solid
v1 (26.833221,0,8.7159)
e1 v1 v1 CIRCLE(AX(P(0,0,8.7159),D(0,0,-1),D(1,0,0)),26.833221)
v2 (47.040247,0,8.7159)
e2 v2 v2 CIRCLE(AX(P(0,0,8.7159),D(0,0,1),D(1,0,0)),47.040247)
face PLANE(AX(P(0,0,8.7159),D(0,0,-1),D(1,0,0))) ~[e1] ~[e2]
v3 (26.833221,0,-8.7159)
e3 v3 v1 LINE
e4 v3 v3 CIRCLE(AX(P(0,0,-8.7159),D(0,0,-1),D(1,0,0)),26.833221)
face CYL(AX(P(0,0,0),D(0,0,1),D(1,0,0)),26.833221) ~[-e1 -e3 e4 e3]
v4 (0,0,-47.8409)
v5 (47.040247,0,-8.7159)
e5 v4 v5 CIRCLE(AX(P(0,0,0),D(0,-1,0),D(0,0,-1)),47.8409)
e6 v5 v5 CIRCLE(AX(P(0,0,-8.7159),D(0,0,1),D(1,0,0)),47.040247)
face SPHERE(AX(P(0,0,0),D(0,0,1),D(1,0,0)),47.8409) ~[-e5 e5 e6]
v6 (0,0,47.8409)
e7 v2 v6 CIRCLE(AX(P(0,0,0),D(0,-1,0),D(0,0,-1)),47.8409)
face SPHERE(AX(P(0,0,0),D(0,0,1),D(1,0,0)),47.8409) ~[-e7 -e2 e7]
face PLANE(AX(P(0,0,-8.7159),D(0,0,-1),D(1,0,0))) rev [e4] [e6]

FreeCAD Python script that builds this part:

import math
import FreeCAD as App
import Part
import Sketcher
from FreeCAD import Vector
Q = App.Units.Quantity

doc = App.newDocument("Part")
body = doc.addObject("PartDesign::Body", "Body")

# Sketch on XZ plane
sketch1 = body.newObject("Sketcher::SketchObject", "Sketch")
sketch1.AttachmentSupport = (doc.getObject("XZ_Plane"), [""])
sketch1.MapMode = "FlatFace"
sketch1.addGeometry(Part.LineSegment(Vector(0, 48, 0), Vector(0, -48, 0)), False)
sketch1.addGeometry(Part.ArcOfCircle(Part.Circle(Vector(0, 0, 0), Vector(0, 0, 1), 48), math.radians(-90), math.radians(90)), False)
sketch1.addConstraint(Sketcher.Constraint("Coincident", 0, 1, 1, 2))
sketch1.addConstraint(Sketcher.Constraint("Coincident", 1, 1, 0, 2))
sketch1.addConstraint(Sketcher.Constraint("Vertical", 0))
sketch1.addConstraint(Sketcher.Constraint("Coincident", 1, 3, -1, 1))
sketch1.addConstraint(Sketcher.Constraint("PointOnObject", 0, 1, -2))
sketch1.addConstraint(Sketcher.Constraint("Radius", 1, Q("1.8835 in")))
revolution = body.newObject("PartDesign::Revolution", "Revolution")
revolution.Profile = sketch1
revolution.ReferenceAxis = (sketch1, ["V_Axis"])
revolution.Angle = 360

# Sketch on XZ plane
sketch2 = body.newObject("Sketcher::SketchObject", "Sketch001")
sketch2.AttachmentSupport = (doc.getObject("XZ_Plane"), [""])
sketch2.MapMode = "FlatFace"
sketch2.addGeometry(Part.LineSegment(Vector(27, 9, 0), Vector(27, -9, 0)), False)
sketch2.addGeometry(Part.LineSegment(Vector(27, -9, 0), Vector(55, -9, 0)), False)
sketch2.addGeometry(Part.LineSegment(Vector(55, -9, 0), Vector(55, 9, 0)), False)
sketch2.addGeometry(Part.LineSegment(Vector(55, 9, 0), Vector(27, 9, 0)), False)
sketch2.addConstraint(Sketcher.Constraint("Coincident", 0, 2, 1, 1))
sketch2.addConstraint(Sketcher.Constraint("Coincident", 1, 2, 2, 1))
sketch2.addConstraint(Sketcher.Constraint("Coincident", 2, 2, 3, 1))
sketch2.addConstraint(Sketcher.Constraint("Coincident", 3, 2, 0, 1))
sketch2.addConstraint(Sketcher.Constraint("Vertical", 0))
sketch2.addConstraint(Sketcher.Constraint("Horizontal", 1))
sketch2.addConstraint(Sketcher.Constraint("Vertical", 2))
sketch2.addConstraint(Sketcher.Constraint("Horizontal", 3))
sketch2.addConstraint(Sketcher.Constraint("DistanceY", 0, 2, 0, 1, Q("17.4318 mm")))
sketch2.addConstraint(Sketcher.Constraint("DistanceY", 0, 2, -1, 1, Q("8.7159 mm")))
sketch2.addConstraint(Sketcher.Constraint("DistanceX", 1, 1, 1, 2, Q("28.595984 mm")))
sketch2.addConstraint(Sketcher.Constraint("DistanceX", -1, 1, 0, 2, Q("26.833221 mm")))
groove = body.newObject("PartDesign::Groove", "Groove")
groove.Profile = sketch2
groove.ReferenceAxis = (sketch2, ["V_Axis"])
groove.Angle = 360

doc.recompute()
